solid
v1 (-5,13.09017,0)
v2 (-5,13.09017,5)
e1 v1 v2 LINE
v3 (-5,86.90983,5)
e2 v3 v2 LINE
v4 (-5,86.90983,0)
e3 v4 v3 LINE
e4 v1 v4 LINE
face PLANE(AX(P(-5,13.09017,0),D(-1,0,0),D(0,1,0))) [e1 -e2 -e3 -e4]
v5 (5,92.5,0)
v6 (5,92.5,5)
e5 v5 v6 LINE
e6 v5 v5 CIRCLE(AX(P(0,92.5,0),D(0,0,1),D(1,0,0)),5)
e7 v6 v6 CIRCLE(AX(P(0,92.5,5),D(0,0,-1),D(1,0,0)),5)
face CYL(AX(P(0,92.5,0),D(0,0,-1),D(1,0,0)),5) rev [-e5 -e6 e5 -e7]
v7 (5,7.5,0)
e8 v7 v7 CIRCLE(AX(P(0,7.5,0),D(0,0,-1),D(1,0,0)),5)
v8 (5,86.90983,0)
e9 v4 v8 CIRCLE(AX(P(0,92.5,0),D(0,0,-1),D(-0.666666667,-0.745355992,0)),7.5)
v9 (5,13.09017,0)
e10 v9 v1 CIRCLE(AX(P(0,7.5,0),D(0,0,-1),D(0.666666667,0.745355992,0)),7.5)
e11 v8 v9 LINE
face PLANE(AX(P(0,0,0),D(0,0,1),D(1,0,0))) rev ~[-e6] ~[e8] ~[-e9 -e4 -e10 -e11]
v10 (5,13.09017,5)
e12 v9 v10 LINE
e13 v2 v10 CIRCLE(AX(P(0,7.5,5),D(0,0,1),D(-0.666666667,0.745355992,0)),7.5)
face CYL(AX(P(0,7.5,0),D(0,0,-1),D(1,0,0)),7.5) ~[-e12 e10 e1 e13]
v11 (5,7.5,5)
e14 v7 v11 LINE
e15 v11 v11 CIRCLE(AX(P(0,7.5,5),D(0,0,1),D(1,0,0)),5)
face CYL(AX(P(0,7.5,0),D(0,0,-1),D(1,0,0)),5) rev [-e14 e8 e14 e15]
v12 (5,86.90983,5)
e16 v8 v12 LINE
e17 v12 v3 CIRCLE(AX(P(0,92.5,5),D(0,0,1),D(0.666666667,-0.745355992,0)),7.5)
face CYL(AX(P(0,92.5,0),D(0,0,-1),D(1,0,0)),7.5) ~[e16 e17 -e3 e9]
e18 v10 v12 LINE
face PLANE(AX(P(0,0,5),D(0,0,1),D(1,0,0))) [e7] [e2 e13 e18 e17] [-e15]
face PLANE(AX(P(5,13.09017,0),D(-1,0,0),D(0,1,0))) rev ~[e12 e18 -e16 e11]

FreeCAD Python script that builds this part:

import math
import FreeCAD as App
import Part
import Sketcher

V = App.Vector
Q = App.Units.Quantity

doc = App.newDocument("Part")
params = doc.addObject("Spreadsheet::Sheet", "Params")
for row, (alias, value) in enumerate([
    ("sketch1_diameter", "10 mm"),
    ("sketch1_radius", "7.5 mm"),
    ("pad1_length", "5 mm"),
], start=1):
    params.set(f"A{row}", alias)
    params.set(f"B{row}", "=" + value)
    params.setAlias(f"B{row}", alias)

body = doc.addObject("PartDesign::Body", "Body")

# Sketch on XY plane
sketch1 = doc.addObject("Sketcher::SketchObject", "Sketch")
body.addObject(sketch1)
sketch1.AttachmentSupport = (doc.XY_Plane, [""])
sketch1.MapMode = "FlatFace"
sketch1.addGeometry([
    Part.LineSegment(V(5, 13, 0), V(5, 87, 0)),  # 0
    Part.ArcOfCircle(Part.Circle(V(0, 92, 0), V(0, 0, 1), 8), math.radians(-48), math.radians(228)),  # 1
    Part.LineSegment(V(-5, 87, 0), V(-5, 13, 0)),  # 2
    Part.ArcOfCircle(Part.Circle(V(0, 8, 0), V(0, 0, 1), 8), math.radians(132), math.radians(408)),  # 3
    Part.Circle(V(0, 8, 0), V(0, 0, 1), 5),  # 4
    Part.Circle(V(0, 92, 0), V(0, 0, 1), 5),  # 5
], False)
sketch1.addConstraint([
    Sketcher.Constraint("Coincident", 0, 2, 1, 1),
    Sketcher.Constraint("Coincident", 1, 2, 2, 1),
    Sketcher.Constraint("Coincident", 2, 2, 3, 1),
    Sketcher.Constraint("Coincident", 3, 2, 0, 1),
    Sketcher.Constraint("Vertical", 0),
    Sketcher.Constraint("Vertical", 2),
    Sketcher.Constraint("Coincident", 4, 3, 3, 3),
    Sketcher.Constraint("Coincident", 5, 3, 1, 3),
    Sketcher.Constraint("Equal", 1, 3),
    Sketcher.Constraint("Equal", 4, 5),
    Sketcher.Constraint("Symmetric", 0, 2, 1, 2, -2),
    Sketcher.Constraint("PointOnObject", 3, 3, -2),
    Sketcher.Constraint("Diameter", 4, Q("10 mm")),
    Sketcher.Constraint("Radius", 1, Q("7.5 mm")),
    Sketcher.Constraint("DistanceX", -1, 1, 0, 2, Q("5 mm")),
    Sketcher.Constraint("DistanceY", 3, 3, 1, 3, Q("85 mm")),
    Sketcher.Constraint("DistanceY", -1, 1, 1, 3, Q("92.5 mm")),
])
sketch1.setExpression("Constraints[12]", "Params.sketch1_diameter")
sketch1.setExpression("Constraints[13]", "Params.sketch1_radius")
pad1 = doc.addObject("PartDesign::Pad", "Pad")
body.addObject(pad1)
pad1.Profile = sketch1
pad1.setExpression("Length", "Params.pad1_length")

doc.recompute()
